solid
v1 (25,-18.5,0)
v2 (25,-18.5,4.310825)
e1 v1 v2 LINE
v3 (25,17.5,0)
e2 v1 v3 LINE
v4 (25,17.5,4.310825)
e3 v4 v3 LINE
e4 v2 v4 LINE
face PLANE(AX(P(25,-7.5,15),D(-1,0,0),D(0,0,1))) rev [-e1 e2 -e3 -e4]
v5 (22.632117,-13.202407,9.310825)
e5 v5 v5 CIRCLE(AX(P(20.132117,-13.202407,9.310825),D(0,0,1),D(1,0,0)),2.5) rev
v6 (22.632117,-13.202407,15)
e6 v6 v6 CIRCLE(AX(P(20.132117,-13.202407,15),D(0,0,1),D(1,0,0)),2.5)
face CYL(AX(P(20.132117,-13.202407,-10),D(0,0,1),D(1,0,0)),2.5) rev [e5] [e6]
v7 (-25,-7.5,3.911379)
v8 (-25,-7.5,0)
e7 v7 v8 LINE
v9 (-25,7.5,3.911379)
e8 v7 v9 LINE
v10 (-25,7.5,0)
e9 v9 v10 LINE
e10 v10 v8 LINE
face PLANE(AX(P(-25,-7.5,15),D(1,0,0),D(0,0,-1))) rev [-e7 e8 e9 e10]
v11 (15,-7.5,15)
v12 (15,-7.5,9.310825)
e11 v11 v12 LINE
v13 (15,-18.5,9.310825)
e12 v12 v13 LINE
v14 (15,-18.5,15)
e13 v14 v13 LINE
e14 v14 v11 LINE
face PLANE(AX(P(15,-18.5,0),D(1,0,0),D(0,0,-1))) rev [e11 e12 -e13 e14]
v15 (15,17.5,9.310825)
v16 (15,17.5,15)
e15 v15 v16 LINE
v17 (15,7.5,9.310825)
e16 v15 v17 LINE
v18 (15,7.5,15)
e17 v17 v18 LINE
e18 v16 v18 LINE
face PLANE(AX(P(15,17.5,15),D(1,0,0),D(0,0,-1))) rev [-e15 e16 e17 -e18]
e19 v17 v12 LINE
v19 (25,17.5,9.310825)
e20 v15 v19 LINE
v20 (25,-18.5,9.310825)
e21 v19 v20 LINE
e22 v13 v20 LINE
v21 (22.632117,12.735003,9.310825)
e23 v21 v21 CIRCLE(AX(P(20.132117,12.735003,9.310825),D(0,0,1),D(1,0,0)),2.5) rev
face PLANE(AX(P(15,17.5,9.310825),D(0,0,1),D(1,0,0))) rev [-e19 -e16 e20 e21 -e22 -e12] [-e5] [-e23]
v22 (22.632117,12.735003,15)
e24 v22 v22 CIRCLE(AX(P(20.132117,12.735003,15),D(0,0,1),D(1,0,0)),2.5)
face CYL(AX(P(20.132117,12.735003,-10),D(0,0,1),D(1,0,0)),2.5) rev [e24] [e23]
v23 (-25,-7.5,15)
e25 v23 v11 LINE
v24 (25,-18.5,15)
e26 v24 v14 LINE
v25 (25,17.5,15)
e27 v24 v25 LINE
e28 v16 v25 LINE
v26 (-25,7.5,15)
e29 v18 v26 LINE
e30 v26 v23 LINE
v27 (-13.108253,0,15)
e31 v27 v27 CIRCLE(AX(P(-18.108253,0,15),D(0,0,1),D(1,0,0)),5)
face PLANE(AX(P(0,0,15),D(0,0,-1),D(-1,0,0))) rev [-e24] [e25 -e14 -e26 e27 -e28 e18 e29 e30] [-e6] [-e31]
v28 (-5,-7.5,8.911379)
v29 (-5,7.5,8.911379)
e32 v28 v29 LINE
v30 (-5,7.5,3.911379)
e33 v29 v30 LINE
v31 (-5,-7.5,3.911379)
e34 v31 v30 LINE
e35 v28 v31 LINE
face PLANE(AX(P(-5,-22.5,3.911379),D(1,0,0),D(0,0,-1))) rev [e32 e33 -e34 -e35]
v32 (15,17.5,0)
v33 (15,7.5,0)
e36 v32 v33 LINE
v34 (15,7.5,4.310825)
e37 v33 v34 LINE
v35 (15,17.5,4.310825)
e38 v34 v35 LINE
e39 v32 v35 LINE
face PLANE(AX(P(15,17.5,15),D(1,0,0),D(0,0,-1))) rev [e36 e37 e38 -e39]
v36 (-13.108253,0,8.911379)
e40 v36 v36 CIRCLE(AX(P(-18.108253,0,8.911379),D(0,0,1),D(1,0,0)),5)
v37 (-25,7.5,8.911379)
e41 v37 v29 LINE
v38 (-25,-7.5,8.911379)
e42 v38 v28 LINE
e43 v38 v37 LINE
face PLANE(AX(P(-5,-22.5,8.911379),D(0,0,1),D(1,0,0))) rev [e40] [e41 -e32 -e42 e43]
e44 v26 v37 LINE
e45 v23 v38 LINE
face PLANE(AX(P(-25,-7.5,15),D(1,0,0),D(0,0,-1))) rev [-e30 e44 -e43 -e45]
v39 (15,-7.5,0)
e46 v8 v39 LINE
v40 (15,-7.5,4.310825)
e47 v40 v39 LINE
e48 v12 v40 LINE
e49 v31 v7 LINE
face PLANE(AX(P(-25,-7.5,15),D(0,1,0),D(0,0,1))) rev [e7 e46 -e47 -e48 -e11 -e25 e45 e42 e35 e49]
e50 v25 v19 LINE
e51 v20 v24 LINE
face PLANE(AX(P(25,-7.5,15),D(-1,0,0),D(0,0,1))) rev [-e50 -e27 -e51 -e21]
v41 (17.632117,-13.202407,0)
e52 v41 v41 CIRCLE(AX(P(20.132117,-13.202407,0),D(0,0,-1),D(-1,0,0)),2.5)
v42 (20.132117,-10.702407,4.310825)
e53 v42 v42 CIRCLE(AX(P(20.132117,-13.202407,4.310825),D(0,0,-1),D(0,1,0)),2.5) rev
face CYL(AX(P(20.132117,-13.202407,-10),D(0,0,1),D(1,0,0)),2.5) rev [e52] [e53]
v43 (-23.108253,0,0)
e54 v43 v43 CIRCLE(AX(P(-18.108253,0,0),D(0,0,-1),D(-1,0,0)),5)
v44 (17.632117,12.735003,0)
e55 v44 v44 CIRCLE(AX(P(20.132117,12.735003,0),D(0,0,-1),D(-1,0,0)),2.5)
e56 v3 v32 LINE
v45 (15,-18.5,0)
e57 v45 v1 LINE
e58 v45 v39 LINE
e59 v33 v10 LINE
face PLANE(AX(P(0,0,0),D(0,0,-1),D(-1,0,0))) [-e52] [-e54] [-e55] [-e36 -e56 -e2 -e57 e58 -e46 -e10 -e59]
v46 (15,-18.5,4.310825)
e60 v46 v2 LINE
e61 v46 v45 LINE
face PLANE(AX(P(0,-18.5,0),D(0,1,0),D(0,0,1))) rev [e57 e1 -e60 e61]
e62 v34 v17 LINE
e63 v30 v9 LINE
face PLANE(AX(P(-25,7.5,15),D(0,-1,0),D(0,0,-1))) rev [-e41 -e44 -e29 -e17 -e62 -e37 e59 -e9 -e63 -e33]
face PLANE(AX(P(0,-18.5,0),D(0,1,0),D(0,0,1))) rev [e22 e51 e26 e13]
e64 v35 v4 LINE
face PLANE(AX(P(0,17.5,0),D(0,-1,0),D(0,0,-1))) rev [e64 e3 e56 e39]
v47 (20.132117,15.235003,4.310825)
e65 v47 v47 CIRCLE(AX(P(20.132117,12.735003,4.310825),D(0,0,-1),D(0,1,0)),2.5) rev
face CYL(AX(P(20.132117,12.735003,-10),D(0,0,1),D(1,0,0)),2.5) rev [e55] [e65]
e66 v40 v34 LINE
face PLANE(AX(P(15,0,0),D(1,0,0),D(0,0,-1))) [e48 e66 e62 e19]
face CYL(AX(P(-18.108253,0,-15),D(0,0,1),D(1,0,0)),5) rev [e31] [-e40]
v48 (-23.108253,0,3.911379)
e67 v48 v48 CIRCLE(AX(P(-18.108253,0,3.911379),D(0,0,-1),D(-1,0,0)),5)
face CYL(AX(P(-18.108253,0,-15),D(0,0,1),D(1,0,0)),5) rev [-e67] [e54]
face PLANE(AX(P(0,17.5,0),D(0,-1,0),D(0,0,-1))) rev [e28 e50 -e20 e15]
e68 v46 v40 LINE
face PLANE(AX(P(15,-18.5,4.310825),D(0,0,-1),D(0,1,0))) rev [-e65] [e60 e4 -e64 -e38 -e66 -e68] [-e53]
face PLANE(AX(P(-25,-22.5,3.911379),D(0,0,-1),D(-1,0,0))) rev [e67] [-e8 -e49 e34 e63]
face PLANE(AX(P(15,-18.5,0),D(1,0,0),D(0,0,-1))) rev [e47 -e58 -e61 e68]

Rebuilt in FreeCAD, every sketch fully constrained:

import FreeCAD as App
import Part
import Sketcher

V = App.Vector


def add_polygon(sketch, points):
    """Adds a closed chain of lines whose ends are joined by coincident constraints."""
    first, n = sketch.GeometryCount, len(points)
    for a, b in zip(points, points[1:] + points[:1]):
        sketch.addGeometry(Part.LineSegment(App.Vector(*a, 0), App.Vector(*b, 0)), False)
    for i in range(n):
        sketch.addConstraint(Sketcher.Constraint("Coincident", first + i, 2, first + (i + 1) % n, 1))

doc = App.newDocument("Part")
body = doc.addObject("PartDesign::Body", "Body")

# Sketch on XY plane
sketch1 = doc.addObject("Sketcher::SketchObject", "Sketch")
body.addObject(sketch1)
sketch1.AttachmentSupport = (doc.XY_Plane, [""])
sketch1.MapMode = "FlatFace"
add_polygon(sketch1, [(-25, 8), (-25, -8), (25, -8), (25, 8)])  # lines 0-3
sketch1.addConstraint([
    Sketcher.Constraint("Vertical", 0),
    Sketcher.Constraint("Horizontal", 1),
    Sketcher.Constraint("Vertical", 2),
    Sketcher.Constraint("Horizontal", 3),
    Sketcher.Constraint("Symmetric", 0, 2, 2, 2, -1, 1),
    Sketcher.Constraint("DistanceX", 1, 1, 1, 2, 50.0),
    Sketcher.Constraint("DistanceY", 0, 2, 0, 1, 15.0),
])
pad1 = doc.addObject("PartDesign::Pad", "Pad")
body.addObject(pad1)
pad1.Profile = sketch1
pad1.Length = 15

# Sketch on XZ plane
sketch2 = doc.addObject("Sketcher::SketchObject", "Sketch001")
body.addObject(sketch2)
sketch2.AttachmentSupport = (doc.XZ_Plane, [""])
sketch2.MapMode = "FlatFace"
sketch2.AttachmentOffset = App.Placement(V(0, 0, -7.5), App.Rotation())
add_polygon(sketch2, [(-25, 4), (-25, 9), (-5, 9), (-5, 4)])  # lines 0-3
sketch2.addConstraint([
    Sketcher.Constraint("Vertical", 0),
    Sketcher.Constraint("Horizontal", 1),
    Sketcher.Constraint("Vertical", 2),
    Sketcher.Constraint("Horizontal", 3),
    Sketcher.Constraint("DistanceX", 1, 1, 1, 2, 20.0),
    Sketcher.Constraint("DistanceY", 0, 1, 0, 2, 5.0),
    Sketcher.Constraint("DistanceX", 0, 2, -1, 1, 25.0),
    Sketcher.Constraint("DistanceY", -1, 1, 0, 2, 8.911379),
])
pocket1 = doc.addObject("PartDesign::Pocket", "Pocket")
body.addObject(pocket1)
pocket1.Profile = sketch2
pocket1.Length = 30
pocket1.Reversed = True

# Sketch on XY plane
sketch3 = doc.addObject("Sketcher::SketchObject", "Sketch002")
body.addObject(sketch3)
sketch3.AttachmentSupport = (doc.XY_Plane, [""])
sketch3.MapMode = "FlatFace"
sketch3.AttachmentOffset = App.Placement(V(0, 0, 15), App.Rotation())
sketch3.addGeometry(Part.Circle(V(-18, 0, 0), V(0, 0, 1), 5), False)
sketch3.addConstraint([
    Sketcher.Constraint("PointOnObject", 0, 3, -1),
    Sketcher.Constraint("Diameter", 0, 10.0),
    Sketcher.Constraint("DistanceX", 0, 3, -1, 1, 18.108253),
])
pocket2 = doc.addObject("PartDesign::Pocket", "Pocket001")
body.addObject(pocket2)
pocket2.Profile = sketch3
pocket2.Length = 30

# Sketch on XZ plane
sketch4 = doc.addObject("Sketcher::SketchObject", "Sketch003")
body.addObject(sketch4)
sketch4.AttachmentSupport = (doc.XZ_Plane, [""])
sketch4.MapMode = "FlatFace"
sketch4.AttachmentOffset = App.Placement(V(0, 0, -7.5), App.Rotation())
add_polygon(sketch4, [(15, 0), (15, 15), (25, 15), (25, 0)])  # lines 0-3
sketch4.addConstraint([
    Sketcher.Constraint("Vertical", 0),
    Sketcher.Constraint("Horizontal", 1),
    Sketcher.Constraint("Vertical", 2),
    Sketcher.Constraint("Horizontal", 3),
    Sketcher.Constraint("PointOnObject", 2, 2, -1),
    Sketcher.Constraint("DistanceX", 1, 1, 1, 2, 10.0),
    Sketcher.Constraint("DistanceY", 0, 1, 0, 2, 15.0),
    Sketcher.Constraint("DistanceX", -1, 1, 0, 2, 15.0),
])
pad2 = doc.addObject("PartDesign::Pad", "Pad001")
body.addObject(pad2)
pad2.Profile = sketch4
pad2.Length = 10
pad2.Reversed = True

# Sketch on XZ plane
sketch5 = doc.addObject("Sketcher::SketchObject", "Sketch004")
body.addObject(sketch5)
sketch5.AttachmentSupport = (doc.XZ_Plane, [""])
sketch5.MapMode = "FlatFace"
sketch5.AttachmentOffset = App.Placement(V(0, 0, 7.5), App.Rotation())
add_polygon(sketch5, [(15, 15), (15, 0), (25, 0), (25, 15)])  # lines 0-3
sketch5.addConstraint([
    Sketcher.Constraint("Vertical", 0),
    Sketcher.Constraint("Horizontal", 1),
    Sketcher.Constraint("Vertical", 2),
    Sketcher.Constraint("Horizontal", 3),
    Sketcher.Constraint("PointOnObject", 0, 2, -1),
    Sketcher.Constraint("DistanceX", 1, 1, 1, 2, 10.0),
    Sketcher.Constraint("DistanceY", 0, 2, 0, 1, 15.0),
    Sketcher.Constraint("DistanceX", -1, 1, 0, 2, 15.0),
])
pad3 = doc.addObject("PartDesign::Pad", "Pad002")
body.addObject(pad3)
pad3.Profile = sketch5
pad3.Length = 11

# Sketch on XY plane
sketch6 = doc.addObject("Sketcher::SketchObject", "Sketch005")
body.addObject(sketch6)
sketch6.AttachmentSupport = (doc.XY_Plane, [""])
sketch6.MapMode = "FlatFace"
sketch6.AttachmentOffset = App.Placement(V(0, 0, 15), App.Rotation())
sketch6.addGeometry([
    Part.Circle(V(20.1, 12.7, 0), V(0, 0, 1), 2.5),
    Part.Circle(V(20.1, -13.2, 0), V(0, 0, 1), 2.5),
], False)
sketch6.addConstraint([
    Sketcher.Constraint("Equal", 0, 1),
    Sketcher.Constraint("Vertical", 0, 3, 1, 3),
    Sketcher.Constraint("Diameter", 0, 5.0),
    Sketcher.Constraint("DistanceY", 1, 3, 0, 3, 25.93741),
    Sketcher.Constraint("DistanceX", -1, 1, 0, 3, 20.132117),
    Sketcher.Constraint("DistanceY", -1, 1, 0, 3, 12.735003),
])
pocket3 = doc.addObject("PartDesign::Pocket", "Pocket002")
body.addObject(pocket3)
pocket3.Profile = sketch6
pocket3.Length = 25

# Sketch on YZ plane
sketch7 = doc.addObject("Sketcher::SketchObject", "Sketch006")
body.addObject(sketch7)
sketch7.AttachmentSupport = (doc.YZ_Plane, [""])
sketch7.MapMode = "FlatFace"
sketch7.AttachmentOffset = App.Placement(V(0, 0, 25), App.Rotation())
add_polygon(sketch7, [(17.5, 9.3), (-18.5, 9.3), (-18.5, 4.3), (17.5, 4.3)])  # lines 0-3
sketch7.addConstraint([
    Sketcher.Constraint("Horizontal", 0),
    Sketcher.Constraint("Vertical", 1),
    Sketcher.Constraint("Horizontal", 2),
    Sketcher.Constraint("Vertical", 3),
    Sketcher.Constraint("DistanceX", 0, 2, 0, 1, 36.0),
    Sketcher.Constraint("DistanceY", 1, 2, 1, 1, 5.0),
    Sketcher.Constraint("DistanceX", 0, 2, -1, 1, 18.5),
    Sketcher.Constraint("DistanceY", -1, 1, 0, 2, 9.310825),
])
pocket4 = doc.addObject("PartDesign::Pocket", "Pocket003")
body.addObject(pocket4)
pocket4.Profile = sketch7
pocket4.Length = 10

doc.recompute()
